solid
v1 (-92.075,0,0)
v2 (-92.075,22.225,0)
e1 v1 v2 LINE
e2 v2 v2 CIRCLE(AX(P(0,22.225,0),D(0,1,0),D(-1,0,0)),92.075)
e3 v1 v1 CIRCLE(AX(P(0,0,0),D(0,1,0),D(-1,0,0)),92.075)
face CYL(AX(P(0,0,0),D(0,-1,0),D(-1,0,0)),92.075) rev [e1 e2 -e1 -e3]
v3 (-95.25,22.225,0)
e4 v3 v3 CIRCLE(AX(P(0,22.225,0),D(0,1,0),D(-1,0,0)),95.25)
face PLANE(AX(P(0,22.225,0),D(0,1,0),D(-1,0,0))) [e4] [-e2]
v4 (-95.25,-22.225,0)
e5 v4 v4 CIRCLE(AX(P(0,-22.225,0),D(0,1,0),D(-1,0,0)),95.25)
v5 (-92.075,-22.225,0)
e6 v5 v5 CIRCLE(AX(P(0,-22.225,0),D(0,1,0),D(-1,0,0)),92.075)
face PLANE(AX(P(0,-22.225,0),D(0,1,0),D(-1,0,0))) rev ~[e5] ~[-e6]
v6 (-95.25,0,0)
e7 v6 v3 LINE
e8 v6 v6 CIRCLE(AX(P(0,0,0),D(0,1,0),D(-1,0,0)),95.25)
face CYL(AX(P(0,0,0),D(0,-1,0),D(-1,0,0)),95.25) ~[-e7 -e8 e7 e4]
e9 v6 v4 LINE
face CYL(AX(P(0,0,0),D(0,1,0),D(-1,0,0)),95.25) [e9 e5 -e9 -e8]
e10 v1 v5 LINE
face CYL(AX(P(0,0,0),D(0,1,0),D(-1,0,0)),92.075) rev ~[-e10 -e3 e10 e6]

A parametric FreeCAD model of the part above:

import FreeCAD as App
import Part
import Sketcher
from FreeCAD import Vector
Q = App.Units.Quantity

doc = App.newDocument("Part")
body = doc.addObject("PartDesign::Body", "Body")

# Sketch on XZ plane
sketch1 = body.newObject("Sketcher::SketchObject", "Sketch")
sketch1.AttachmentSupport = (doc.getObject("XZ_Plane"), [""])
sketch1.MapMode = "FlatFace"
sketch1.addGeometry([
    Part.Circle(Vector(0, 0, 0), Vector(0, 0, 1), 95),
    Part.Circle(Vector(0, 0, 0), Vector(0, 0, 1), 92),
], False)
sketch1.addConstraint([
    Sketcher.Constraint("Coincident", 0, 3, -1, 1),
    Sketcher.Constraint("Coincident", 1, 3, -1, 1),
    Sketcher.Constraint("Diameter", 0, Q("7.5 in")),
    Sketcher.Constraint("Diameter", 1, Q("7.25 in")),
])
pad1 = body.newObject("PartDesign::Pad", "Pad")
pad1.Profile = sketch1
pad1.Length = Q("1.75 in")
pad1.Midplane = True

doc.recompute()
